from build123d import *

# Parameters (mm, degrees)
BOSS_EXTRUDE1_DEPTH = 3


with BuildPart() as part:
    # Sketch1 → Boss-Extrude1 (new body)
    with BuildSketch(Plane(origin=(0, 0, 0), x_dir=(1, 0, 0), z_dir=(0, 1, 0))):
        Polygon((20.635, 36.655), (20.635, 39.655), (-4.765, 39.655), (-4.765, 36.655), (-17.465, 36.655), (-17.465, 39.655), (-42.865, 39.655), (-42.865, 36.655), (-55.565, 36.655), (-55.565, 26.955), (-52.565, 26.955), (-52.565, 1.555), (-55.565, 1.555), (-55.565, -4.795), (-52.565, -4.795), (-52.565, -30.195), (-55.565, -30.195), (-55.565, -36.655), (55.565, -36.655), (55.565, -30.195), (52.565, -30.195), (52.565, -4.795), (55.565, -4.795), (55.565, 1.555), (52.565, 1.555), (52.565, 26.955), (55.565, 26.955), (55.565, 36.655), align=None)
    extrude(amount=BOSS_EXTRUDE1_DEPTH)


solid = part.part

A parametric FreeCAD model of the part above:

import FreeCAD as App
import Part
import Sketcher
Q = App.Units.Quantity

doc = App.newDocument("Part")
body = doc.addObject("PartDesign::Body", "Body")

sketch1 = body.newObject("Sketcher::SketchObject", "Sketch")
sketch1.AttachmentSupport = (doc.getObject("XZ_Plane"), [""])
sketch1.MapMode = "FlatFace"
sketch1.addGeometry([
    Part.LineSegment(App.Vector(20.6, -36.7, 0), App.Vector(20.6, -39.7, 0)),
    Part.LineSegment(App.Vector(20.6, -39.7, 0), App.Vector(-4.8, -39.7, 0)),
    Part.LineSegment(App.Vector(-4.8, -39.7, 0), App.Vector(-4.8, -36.7, 0)),
    Part.LineSegment(App.Vector(-4.8, -36.7, 0), App.Vector(-17.5, -36.7, 0)),
    Part.LineSegment(App.Vector(-17.5, -36.7, 0), App.Vector(-17.5, -39.7, 0)),
    Part.LineSegment(App.Vector(-17.5, -39.7, 0), App.Vector(-42.9, -39.7, 0)),
    Part.LineSegment(App.Vector(-42.9, -39.7, 0), App.Vector(-42.9, -36.7, 0)),
    Part.LineSegment(App.Vector(-42.9, -36.7, 0), App.Vector(-55.6, -36.7, 0)),
    Part.LineSegment(App.Vector(-55.6, -36.7, 0), App.Vector(-55.6, -27, 0)),
    Part.LineSegment(App.Vector(-55.6, -27, 0), App.Vector(-52.6, -27, 0)),
    Part.LineSegment(App.Vector(-52.6, -27, 0), App.Vector(-52.6, -1.6, 0)),
    Part.LineSegment(App.Vector(-52.6, -1.6, 0), App.Vector(-55.6, -1.6, 0)),
    Part.LineSegment(App.Vector(-55.6, -1.6, 0), App.Vector(-55.6, 4.8, 0)),
    Part.LineSegment(App.Vector(-55.6, 4.8, 0), App.Vector(-52.6, 4.8, 0)),
    Part.LineSegment(App.Vector(-52.6, 4.8, 0), App.Vector(-52.6, 30.2, 0)),
    Part.LineSegment(App.Vector(-52.6, 30.2, 0), App.Vector(-55.6, 30.2, 0)),
    Part.LineSegment(App.Vector(-55.6, 30.2, 0), App.Vector(-55.6, 36.7, 0)),
    Part.LineSegment(App.Vector(-55.6, 36.7, 0), App.Vector(55.6, 36.7, 0)),
    Part.LineSegment(App.Vector(55.6, 36.7, 0), App.Vector(55.6, 30.2, 0)),
    Part.LineSegment(App.Vector(55.6, 30.2, 0), App.Vector(52.6, 30.2, 0)),
    Part.LineSegment(App.Vector(52.6, 30.2, 0), App.Vector(52.6, 4.8, 0)),
    Part.LineSegment(App.Vector(52.6, 4.8, 0), App.Vector(55.6, 4.8, 0)),
    Part.LineSegment(App.Vector(55.6, 4.8, 0), App.Vector(55.6, -1.6, 0)),
    Part.LineSegment(App.Vector(55.6, -1.6, 0), App.Vector(52.6, -1.6, 0)),
    Part.LineSegment(App.Vector(52.6, -1.6, 0), App.Vector(52.6, -27, 0)),
    Part.LineSegment(App.Vector(52.6, -27, 0), App.Vector(55.6, -27, 0)),
    Part.LineSegment(App.Vector(55.6, -27, 0), App.Vector(55.6, -36.7, 0)),
    Part.LineSegment(App.Vector(55.6, -36.7, 0), App.Vector(20.6, -36.7, 0)),
], False)
sketch1.addConstraint([
    Sketcher.Constraint("Coincident", 0, 2, 1, 1),
    Sketcher.Constraint("Coincident", 1, 2, 2, 1),
    Sketcher.Constraint("Coincident", 2, 2, 3, 1),
    Sketcher.Constraint("Coincident", 3, 2, 4, 1),
    Sketcher.Constraint("Coincident", 4, 2, 5, 1),
    Sketcher.Constraint("Coincident", 5, 2, 6, 1),
    Sketcher.Constraint("Coincident", 6, 2, 7, 1),
    Sketcher.Constraint("Coincident", 7, 2, 8, 1),
    Sketcher.Constraint("Coincident", 8, 2, 9, 1),
    Sketcher.Constraint("Coincident", 9, 2, 10, 1),
    Sketcher.Constraint("Coincident", 10, 2, 11, 1),
    Sketcher.Constraint("Coincident", 11, 2, 12, 1),
    Sketcher.Constraint("Coincident", 12, 2, 13, 1),
    Sketcher.Constraint("Coincident", 13, 2, 14, 1),
    Sketcher.Constraint("Coincident", 14, 2, 15, 1),
    Sketcher.Constraint("Coincident", 15, 2, 16, 1),
    Sketcher.Constraint("Coincident", 16, 2, 17, 1),
    Sketcher.Constraint("Coincident", 17, 2, 18, 1),
    Sketcher.Constraint("Coincident", 18, 2, 19, 1),
    Sketcher.Constraint("Coincident", 19, 2, 20, 1),
    Sketcher.Constraint("Coincident", 20, 2, 21, 1),
    Sketcher.Constraint("Coincident", 21, 2, 22, 1),
    Sketcher.Constraint("Coincident", 22, 2, 23, 1),
    Sketcher.Constraint("Coincident", 23, 2, 24, 1),
    Sketcher.Constraint("Coincident", 24, 2, 25, 1),
    Sketcher.Constraint("Coincident", 25, 2, 26, 1),
    Sketcher.Constraint("Coincident", 26, 2, 27, 1),
    Sketcher.Constraint("Coincident", 27, 2, 0, 1),
    Sketcher.Constraint("Vertical", 0),
    Sketcher.Constraint("Horizontal", 1),
    Sketcher.Constraint("Vertical", 2),
    Sketcher.Constraint("Horizontal", 3),
    Sketcher.Constraint("Vertical", 4),
    Sketcher.Constraint("Horizontal", 5),
    Sketcher.Constraint("Vertical", 6),
    Sketcher.Constraint("Horizontal", 7),
    Sketcher.Constraint("Vertical", 8),
    Sketcher.Constraint("Horizontal", 9),
    Sketcher.Constraint("Vertical", 10),
    Sketcher.Constraint("Horizontal", 11),
    Sketcher.Constraint("Vertical", 12),
    Sketcher.Constraint("Horizontal", 13),
    Sketcher.Constraint("Vertical", 14),
    Sketcher.Constraint("Horizontal", 15),
    Sketcher.Constraint("Vertical", 16),
    Sketcher.Constraint("Horizontal", 17),
    Sketcher.Constraint("Vertical", 18),
    Sketcher.Constraint("Horizontal", 19),
    Sketcher.Constraint("Vertical", 20),
    Sketcher.Constraint("Horizontal", 21),
    Sketcher.Constraint("Vertical", 22),
    Sketcher.Constraint("Horizontal", 23),
    Sketcher.Constraint("Vertical", 24),
    Sketcher.Constraint("Horizontal", 25),
    Sketcher.Constraint("Vertical", 26),
    Sketcher.Constraint("Horizontal", 27),
    Sketcher.Constraint("Symmetric", 7, 2, 17, 2, -1, 1),
    Sketcher.Constraint("Symmetric", 16, 2, 26, 2, -1, 1),
    Sketcher.Constraint("Symmetric", 15, 2, 18, 2, -2),
    Sketcher.Constraint("Symmetric", 13, 2, 20, 2, -2),
    Sketcher.Constraint("Symmetric", 11, 2, 22, 2, -2),
    Sketcher.Constraint("Symmetric", 9, 2, 24, 2, -2),
    Sketcher.Constraint("Horizontal", 1, 2, 4, 2),
    Sketcher.Constraint("Horizontal", 3, 2, 6, 2),
    Sketcher.Constraint("Vertical", 8, 2, 11, 2),
    Sketcher.Constraint("Vertical", 10, 2, 13, 2),
    Sketcher.Constraint("Equal", 1, 5),
    Sketcher.Constraint("Equal", 3, 7),
    Sketcher.Constraint("Equal", 25, 0),
    Sketcher.Constraint("Equal", 5, 10),
    Sketcher.Constraint("Equal", 10, 14),
    Sketcher.Constraint("DistanceX", 1, 2, 1, 1, Q("1 in")),
    Sketcher.Constraint("DistanceX", 3, 2, 3, 1, Q("0.5 in")),
    Sketcher.Constraint("DistanceY", 12, 1, 12, 2, Q("0.25 in")),
    Sketcher.Constraint("DistanceY", 5, 2, 8, 2, Q("0.5 in")),
    Sketcher.Constraint("DistanceX", 9, 1, 9, 2, 3.0),
    Sketcher.Constraint("DistanceX", 17, 1, 17, 2, 111.13),
    Sketcher.Constraint("DistanceY", 16, 1, 16, 2, 6.46),
])
pad1 = body.newObject("PartDesign::Pad", "Pad")
pad1.Profile = sketch1
pad1.Length = 3
pad1.Reversed = True

doc.recompute()
